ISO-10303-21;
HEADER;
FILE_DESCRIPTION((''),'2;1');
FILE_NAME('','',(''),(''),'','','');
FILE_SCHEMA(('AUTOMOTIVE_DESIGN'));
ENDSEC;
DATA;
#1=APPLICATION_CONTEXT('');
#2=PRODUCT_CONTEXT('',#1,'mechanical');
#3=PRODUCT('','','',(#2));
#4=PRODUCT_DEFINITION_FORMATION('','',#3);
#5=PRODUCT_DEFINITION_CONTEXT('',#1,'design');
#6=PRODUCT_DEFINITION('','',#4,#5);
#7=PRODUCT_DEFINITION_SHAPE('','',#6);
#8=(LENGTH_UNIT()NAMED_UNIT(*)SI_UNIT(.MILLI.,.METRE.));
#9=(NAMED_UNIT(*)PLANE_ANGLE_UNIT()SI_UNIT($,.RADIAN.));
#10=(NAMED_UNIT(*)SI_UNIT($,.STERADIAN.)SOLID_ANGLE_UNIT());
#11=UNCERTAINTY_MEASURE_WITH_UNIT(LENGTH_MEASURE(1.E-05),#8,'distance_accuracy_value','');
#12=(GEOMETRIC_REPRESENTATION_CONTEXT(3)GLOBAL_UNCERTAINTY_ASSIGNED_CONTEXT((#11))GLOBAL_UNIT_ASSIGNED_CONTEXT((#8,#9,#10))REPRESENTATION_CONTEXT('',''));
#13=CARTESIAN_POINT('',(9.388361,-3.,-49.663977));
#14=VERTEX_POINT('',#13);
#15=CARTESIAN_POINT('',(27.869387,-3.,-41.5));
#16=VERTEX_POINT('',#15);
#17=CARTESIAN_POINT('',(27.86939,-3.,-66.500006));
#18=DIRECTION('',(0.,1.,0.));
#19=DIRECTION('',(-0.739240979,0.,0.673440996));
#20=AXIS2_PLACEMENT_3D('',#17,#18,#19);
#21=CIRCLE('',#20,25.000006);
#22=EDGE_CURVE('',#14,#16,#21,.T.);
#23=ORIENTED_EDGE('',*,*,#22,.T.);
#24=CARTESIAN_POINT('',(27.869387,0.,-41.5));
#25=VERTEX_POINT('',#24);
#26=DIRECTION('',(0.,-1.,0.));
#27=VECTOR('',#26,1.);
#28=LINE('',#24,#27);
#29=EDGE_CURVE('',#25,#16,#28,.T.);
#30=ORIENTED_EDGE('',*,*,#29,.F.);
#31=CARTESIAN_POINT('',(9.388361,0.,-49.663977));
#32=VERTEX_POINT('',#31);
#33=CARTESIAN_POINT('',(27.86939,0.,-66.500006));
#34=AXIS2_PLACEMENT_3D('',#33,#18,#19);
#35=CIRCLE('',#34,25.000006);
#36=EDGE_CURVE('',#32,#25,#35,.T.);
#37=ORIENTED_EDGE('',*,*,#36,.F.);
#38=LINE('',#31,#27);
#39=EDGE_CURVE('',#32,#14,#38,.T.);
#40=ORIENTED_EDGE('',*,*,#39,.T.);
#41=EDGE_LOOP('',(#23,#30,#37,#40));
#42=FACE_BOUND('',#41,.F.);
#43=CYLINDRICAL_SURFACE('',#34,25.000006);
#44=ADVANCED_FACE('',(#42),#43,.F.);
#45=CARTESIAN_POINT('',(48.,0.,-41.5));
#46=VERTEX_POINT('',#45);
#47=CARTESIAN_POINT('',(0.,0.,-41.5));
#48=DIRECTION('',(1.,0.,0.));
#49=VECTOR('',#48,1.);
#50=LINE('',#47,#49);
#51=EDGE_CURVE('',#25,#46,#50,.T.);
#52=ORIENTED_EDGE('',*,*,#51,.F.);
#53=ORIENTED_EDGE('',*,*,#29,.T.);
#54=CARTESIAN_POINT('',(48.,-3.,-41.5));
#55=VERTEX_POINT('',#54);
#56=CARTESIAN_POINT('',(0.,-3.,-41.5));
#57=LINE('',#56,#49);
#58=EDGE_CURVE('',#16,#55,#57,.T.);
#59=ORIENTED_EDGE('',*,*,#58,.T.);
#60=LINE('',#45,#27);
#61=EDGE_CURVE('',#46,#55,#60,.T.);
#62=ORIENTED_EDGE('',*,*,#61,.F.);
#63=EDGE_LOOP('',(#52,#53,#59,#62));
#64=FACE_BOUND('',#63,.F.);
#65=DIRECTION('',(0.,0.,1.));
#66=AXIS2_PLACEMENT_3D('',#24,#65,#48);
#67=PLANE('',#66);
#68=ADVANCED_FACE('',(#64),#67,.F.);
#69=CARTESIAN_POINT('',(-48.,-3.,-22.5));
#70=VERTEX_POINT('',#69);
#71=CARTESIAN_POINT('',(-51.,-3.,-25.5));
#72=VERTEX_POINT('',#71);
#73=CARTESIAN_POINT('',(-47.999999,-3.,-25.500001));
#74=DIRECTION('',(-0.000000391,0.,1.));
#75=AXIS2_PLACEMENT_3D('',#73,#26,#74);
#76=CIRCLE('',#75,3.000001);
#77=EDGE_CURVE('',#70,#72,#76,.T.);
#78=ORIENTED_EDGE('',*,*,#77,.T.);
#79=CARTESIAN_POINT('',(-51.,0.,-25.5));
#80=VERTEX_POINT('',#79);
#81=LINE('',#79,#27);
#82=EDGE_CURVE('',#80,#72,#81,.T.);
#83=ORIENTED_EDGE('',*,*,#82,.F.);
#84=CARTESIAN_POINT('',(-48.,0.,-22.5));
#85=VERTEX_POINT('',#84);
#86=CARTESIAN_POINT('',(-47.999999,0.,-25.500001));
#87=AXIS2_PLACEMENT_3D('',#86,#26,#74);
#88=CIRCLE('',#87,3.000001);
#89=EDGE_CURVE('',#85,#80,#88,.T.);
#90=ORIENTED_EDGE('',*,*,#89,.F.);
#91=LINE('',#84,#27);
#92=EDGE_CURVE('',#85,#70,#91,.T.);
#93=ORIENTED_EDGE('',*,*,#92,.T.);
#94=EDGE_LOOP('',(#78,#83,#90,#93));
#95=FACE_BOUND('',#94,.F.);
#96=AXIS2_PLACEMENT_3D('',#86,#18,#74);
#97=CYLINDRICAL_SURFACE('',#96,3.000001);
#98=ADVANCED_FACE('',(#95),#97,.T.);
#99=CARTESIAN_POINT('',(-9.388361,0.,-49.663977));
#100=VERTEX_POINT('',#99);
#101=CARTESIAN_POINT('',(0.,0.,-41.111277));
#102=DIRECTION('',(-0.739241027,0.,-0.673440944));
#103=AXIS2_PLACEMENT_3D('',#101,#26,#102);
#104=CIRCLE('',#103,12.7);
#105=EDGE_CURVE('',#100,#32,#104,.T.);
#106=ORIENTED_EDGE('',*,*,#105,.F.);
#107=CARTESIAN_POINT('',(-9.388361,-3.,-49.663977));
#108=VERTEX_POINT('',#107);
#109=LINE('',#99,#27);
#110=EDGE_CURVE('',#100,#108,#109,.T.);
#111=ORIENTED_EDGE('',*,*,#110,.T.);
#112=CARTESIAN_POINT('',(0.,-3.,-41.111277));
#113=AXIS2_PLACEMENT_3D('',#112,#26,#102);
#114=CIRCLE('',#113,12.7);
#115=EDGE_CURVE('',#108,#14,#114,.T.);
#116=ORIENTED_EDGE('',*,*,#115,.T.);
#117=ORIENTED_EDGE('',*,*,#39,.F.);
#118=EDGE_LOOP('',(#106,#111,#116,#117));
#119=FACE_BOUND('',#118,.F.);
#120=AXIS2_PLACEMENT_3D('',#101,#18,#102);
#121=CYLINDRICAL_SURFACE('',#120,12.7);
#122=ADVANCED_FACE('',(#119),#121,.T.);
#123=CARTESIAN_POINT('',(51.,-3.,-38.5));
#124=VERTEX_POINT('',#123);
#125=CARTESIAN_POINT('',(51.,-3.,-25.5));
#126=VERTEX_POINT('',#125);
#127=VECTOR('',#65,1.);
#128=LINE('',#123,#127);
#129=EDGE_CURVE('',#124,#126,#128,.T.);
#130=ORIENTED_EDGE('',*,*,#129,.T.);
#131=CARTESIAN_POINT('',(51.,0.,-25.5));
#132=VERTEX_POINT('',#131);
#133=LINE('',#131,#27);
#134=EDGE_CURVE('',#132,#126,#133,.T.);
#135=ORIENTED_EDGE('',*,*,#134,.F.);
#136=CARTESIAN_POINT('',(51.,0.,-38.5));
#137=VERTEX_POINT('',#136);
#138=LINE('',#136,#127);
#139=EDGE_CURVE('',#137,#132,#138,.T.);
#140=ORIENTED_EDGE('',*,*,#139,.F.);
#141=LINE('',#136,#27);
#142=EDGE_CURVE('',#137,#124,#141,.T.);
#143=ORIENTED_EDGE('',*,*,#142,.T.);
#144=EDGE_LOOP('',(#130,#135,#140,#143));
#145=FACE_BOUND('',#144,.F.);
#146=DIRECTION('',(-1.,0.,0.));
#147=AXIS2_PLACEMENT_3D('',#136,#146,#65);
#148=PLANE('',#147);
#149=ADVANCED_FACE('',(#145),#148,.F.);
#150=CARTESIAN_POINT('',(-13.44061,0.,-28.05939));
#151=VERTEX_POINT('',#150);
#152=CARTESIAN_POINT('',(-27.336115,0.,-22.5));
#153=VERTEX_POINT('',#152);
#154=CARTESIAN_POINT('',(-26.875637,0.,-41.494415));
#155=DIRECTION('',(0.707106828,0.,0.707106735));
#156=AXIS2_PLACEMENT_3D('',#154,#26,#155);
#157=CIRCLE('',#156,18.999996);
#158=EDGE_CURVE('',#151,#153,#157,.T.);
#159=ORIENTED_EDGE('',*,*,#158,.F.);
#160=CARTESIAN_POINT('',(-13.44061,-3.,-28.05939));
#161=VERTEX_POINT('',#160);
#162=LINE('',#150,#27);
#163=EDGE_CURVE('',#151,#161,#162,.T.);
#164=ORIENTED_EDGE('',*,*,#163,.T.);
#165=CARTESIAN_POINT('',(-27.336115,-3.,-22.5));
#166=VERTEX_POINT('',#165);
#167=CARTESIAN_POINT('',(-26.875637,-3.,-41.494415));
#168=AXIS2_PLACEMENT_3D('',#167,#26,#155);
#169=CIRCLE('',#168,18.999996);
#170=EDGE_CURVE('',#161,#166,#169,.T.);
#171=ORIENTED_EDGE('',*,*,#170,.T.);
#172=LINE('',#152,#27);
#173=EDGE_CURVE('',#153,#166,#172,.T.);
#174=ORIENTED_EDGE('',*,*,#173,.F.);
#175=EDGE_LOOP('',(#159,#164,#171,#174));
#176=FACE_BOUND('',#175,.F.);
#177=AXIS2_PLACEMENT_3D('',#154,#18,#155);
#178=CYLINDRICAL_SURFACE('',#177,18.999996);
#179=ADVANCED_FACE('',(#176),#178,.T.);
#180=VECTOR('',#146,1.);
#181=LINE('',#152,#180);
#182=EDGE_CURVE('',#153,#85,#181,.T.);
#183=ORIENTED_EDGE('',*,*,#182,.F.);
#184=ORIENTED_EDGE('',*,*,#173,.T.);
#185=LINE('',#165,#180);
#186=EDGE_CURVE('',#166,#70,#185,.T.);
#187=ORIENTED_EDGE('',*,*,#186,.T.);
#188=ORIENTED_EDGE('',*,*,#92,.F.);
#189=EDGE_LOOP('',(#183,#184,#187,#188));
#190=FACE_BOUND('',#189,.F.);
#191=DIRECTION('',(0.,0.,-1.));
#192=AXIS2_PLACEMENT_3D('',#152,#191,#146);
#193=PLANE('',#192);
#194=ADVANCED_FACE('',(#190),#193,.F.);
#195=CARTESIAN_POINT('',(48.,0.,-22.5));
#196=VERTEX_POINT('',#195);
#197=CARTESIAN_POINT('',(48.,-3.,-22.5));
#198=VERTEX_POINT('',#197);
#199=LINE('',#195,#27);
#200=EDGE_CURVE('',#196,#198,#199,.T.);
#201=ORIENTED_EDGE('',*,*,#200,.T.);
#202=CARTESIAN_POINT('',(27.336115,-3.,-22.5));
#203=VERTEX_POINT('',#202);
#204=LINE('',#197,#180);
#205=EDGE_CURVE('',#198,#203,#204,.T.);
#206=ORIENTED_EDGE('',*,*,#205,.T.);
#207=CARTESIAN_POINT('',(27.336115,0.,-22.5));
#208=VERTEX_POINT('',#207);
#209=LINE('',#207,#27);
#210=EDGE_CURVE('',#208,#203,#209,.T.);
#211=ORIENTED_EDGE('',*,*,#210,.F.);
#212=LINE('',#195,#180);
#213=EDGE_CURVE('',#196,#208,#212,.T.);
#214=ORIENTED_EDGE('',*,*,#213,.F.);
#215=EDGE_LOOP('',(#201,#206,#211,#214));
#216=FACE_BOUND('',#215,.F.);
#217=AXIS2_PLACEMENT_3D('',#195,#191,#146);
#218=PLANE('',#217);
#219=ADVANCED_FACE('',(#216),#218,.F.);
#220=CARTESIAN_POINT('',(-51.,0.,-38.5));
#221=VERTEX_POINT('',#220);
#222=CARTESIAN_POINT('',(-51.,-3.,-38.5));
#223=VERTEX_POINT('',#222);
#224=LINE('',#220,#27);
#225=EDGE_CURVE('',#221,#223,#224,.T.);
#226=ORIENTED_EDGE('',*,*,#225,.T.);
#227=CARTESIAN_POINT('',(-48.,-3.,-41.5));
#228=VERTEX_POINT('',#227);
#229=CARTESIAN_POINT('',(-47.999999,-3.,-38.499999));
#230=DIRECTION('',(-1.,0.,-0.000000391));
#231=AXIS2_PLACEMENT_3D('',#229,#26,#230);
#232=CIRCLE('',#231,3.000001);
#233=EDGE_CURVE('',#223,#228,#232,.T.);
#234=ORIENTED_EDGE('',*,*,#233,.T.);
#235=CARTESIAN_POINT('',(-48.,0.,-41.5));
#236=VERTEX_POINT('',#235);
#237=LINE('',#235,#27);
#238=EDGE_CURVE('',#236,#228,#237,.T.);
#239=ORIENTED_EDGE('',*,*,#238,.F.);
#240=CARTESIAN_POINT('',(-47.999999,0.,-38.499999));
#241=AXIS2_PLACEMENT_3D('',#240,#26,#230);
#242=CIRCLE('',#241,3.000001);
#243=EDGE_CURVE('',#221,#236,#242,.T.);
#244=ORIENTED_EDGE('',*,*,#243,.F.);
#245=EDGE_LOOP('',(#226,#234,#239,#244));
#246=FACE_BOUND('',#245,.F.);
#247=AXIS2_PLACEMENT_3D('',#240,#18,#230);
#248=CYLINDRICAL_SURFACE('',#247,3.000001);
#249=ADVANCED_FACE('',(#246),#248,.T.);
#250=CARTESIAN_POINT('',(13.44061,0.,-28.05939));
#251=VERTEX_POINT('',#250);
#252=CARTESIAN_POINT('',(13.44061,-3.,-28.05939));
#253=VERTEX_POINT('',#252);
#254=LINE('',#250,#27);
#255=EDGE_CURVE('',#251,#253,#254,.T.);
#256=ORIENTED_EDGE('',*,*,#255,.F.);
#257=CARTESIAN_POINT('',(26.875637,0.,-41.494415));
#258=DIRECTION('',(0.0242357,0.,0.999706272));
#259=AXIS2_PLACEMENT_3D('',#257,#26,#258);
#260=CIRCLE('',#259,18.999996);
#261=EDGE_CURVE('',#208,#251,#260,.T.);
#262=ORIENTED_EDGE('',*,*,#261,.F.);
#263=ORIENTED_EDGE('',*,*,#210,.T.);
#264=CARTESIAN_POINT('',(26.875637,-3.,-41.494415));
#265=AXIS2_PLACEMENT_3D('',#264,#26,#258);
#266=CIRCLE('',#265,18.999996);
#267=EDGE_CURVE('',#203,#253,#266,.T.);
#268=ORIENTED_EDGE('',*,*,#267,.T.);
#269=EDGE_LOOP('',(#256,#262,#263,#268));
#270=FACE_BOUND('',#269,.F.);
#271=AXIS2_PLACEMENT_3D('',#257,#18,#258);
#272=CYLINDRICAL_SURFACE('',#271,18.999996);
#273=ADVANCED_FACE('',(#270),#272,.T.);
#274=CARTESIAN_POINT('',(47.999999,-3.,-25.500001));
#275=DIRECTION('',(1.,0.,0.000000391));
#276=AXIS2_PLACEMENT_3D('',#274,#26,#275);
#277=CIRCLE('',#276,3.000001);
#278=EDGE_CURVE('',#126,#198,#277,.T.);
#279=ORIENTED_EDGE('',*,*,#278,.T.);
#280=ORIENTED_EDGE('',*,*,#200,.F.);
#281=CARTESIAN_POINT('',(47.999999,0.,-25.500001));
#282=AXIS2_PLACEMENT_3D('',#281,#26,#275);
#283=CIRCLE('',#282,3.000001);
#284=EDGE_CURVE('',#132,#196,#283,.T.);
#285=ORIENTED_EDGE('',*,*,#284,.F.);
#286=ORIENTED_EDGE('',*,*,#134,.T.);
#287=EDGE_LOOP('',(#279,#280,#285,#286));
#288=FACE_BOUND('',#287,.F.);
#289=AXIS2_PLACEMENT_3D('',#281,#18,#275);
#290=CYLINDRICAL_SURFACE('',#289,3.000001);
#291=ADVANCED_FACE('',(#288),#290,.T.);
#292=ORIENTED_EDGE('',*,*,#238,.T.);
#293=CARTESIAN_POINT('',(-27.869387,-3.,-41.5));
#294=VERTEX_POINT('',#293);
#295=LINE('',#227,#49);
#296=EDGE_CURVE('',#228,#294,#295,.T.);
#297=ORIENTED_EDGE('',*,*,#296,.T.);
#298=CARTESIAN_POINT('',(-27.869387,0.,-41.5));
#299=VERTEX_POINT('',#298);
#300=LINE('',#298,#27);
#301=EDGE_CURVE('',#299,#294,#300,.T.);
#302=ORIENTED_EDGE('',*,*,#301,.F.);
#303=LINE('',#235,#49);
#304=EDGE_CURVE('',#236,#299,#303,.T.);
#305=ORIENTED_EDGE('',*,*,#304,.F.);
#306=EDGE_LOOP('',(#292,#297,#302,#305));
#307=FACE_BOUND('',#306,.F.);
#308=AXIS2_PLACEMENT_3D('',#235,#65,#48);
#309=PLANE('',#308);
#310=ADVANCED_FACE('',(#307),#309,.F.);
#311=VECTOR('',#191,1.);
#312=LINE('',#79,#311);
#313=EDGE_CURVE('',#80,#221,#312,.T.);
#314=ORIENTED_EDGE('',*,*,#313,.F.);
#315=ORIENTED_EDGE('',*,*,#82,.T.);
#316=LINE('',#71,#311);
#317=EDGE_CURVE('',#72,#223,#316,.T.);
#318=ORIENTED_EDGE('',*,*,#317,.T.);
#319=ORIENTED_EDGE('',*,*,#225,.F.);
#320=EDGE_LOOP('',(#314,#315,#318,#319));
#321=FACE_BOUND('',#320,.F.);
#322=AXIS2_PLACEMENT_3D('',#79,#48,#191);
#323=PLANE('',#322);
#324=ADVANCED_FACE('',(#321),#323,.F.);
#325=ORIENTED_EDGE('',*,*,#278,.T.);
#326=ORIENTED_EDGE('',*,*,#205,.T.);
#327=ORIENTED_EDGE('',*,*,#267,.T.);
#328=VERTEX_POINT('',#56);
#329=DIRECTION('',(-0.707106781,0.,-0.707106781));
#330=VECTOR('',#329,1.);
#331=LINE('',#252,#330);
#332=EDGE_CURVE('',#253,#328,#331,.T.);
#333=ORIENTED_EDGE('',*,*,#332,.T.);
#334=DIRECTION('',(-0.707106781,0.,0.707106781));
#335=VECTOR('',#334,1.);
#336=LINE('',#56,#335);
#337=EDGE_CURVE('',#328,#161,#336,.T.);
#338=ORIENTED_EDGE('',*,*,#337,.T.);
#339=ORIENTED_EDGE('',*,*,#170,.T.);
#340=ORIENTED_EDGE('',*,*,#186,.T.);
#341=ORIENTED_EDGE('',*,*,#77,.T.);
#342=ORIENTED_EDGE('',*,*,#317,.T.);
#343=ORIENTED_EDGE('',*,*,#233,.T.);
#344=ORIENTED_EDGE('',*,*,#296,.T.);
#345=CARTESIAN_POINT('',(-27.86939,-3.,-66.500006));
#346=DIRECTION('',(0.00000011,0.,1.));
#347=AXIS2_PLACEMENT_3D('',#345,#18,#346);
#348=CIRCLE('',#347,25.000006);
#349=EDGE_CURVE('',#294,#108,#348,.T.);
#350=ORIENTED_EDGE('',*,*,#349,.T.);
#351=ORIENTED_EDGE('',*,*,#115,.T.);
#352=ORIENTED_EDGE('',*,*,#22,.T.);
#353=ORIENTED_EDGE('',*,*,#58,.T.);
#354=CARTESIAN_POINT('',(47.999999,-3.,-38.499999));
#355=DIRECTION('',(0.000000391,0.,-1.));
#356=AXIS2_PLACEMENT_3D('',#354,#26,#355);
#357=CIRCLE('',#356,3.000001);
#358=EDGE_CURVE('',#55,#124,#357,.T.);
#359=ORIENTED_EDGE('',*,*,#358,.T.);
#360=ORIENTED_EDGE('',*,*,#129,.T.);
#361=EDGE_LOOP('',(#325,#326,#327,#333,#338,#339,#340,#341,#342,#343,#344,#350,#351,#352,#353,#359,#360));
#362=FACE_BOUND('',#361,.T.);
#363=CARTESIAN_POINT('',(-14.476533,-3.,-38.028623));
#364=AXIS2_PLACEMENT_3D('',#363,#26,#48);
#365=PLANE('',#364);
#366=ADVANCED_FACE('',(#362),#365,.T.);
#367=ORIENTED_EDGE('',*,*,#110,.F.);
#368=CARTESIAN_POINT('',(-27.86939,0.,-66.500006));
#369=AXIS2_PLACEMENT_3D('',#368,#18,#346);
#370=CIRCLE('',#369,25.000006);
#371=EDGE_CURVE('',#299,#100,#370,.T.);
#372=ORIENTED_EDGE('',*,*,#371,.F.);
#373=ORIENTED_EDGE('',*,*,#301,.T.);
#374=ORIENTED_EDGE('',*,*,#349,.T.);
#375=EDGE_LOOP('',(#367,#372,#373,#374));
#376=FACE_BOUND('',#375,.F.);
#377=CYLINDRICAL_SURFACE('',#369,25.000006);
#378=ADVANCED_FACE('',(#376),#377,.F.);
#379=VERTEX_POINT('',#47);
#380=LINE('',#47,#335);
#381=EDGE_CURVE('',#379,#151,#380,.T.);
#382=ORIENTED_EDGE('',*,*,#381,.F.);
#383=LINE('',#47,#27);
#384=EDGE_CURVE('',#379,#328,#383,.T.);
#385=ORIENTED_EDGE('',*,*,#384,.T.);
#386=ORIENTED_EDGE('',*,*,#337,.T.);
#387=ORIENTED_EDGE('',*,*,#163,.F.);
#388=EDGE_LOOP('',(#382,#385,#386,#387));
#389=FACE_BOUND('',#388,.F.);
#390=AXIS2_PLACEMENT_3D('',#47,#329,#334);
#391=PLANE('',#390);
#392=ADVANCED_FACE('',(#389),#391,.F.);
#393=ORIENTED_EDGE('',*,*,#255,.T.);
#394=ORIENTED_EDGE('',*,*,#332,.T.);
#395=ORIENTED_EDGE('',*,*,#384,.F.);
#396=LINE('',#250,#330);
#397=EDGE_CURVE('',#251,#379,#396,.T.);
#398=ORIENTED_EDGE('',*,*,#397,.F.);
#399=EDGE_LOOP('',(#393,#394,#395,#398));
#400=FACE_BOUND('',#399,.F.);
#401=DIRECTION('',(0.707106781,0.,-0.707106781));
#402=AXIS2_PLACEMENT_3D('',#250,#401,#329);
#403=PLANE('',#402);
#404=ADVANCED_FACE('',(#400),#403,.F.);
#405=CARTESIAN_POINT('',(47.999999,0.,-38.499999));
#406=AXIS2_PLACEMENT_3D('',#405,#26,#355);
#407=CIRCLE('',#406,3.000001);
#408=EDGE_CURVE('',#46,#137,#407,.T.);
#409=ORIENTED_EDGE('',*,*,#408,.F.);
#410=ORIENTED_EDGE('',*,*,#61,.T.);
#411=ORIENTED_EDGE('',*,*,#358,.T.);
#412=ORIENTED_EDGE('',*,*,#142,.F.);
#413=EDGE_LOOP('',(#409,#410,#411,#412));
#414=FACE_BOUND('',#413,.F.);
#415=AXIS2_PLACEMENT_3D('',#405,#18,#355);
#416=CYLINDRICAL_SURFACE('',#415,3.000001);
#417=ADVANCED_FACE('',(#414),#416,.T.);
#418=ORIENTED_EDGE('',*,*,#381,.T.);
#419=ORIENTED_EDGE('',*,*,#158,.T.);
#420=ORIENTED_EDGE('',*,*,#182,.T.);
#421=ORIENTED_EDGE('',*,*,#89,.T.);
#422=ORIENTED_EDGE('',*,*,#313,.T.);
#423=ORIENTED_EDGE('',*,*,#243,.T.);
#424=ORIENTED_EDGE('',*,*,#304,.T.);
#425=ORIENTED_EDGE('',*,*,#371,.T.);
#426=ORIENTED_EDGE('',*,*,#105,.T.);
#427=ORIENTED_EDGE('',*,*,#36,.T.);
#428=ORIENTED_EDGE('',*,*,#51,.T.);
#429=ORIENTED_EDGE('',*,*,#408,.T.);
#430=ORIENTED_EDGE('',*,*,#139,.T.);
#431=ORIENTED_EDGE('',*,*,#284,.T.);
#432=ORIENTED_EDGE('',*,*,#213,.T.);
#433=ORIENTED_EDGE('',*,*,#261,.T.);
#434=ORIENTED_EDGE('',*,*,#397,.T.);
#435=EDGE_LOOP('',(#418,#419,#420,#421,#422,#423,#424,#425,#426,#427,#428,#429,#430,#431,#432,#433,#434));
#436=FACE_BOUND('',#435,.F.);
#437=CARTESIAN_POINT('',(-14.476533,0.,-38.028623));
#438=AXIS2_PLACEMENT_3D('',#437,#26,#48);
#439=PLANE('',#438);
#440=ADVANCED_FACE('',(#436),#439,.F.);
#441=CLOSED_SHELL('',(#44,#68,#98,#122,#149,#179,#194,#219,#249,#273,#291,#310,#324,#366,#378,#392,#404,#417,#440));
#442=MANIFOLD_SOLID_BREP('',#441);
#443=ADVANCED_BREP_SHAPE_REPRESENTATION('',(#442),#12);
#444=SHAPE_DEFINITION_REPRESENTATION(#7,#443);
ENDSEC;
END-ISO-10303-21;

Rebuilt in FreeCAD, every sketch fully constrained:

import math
import FreeCAD as App
import Part
import Sketcher

V = App.Vector
Q = App.Units.Quantity

doc = App.newDocument("Part")
body = doc.addObject("PartDesign::Body", "Body")

# Sketch on XZ plane
sketch1 = doc.addObject("Sketcher::SketchObject", "Sketch")
body.addObject(sketch1)
sketch1.AttachmentSupport = (doc.XZ_Plane, [""])
sketch1.MapMode = "FlatFace"
sketch1.addGeometry(Part.ArcOfCircle(Part.Circle(V(-48, -25.5, 0), V(0, 0, 1), 3), math.radians(90), math.radians(180)), False)
sketch1.addGeometry(Part.LineSegment(V(-51, -25.5, 0), V(-51, -38.5, 0)), False)
sketch1.addGeometry(Part.ArcOfCircle(Part.Circle(V(-48, -38.5, 0), V(0, 0, 1), 3), math.radians(-180), math.radians(-90)), False)
sketch1.addGeometry(Part.LineSegment(V(-48, -41.5, 0), V(-27.9, -41.5, 0)), False)
sketch1.addGeometry(Part.ArcOfCircle(Part.Circle(V(-27.9, -66.5, 0), V(0, 0, 1), 25), math.radians(42), math.radians(90)), False)
sketch1.addGeometry(Part.ArcOfCircle(Part.Circle(V(0, -41.1, 0), V(0, 0, 1), 12.7), math.radians(-138), math.radians(-42)), False)
sketch1.addGeometry(Part.ArcOfCircle(Part.Circle(V(27.9, -66.5, 0), V(0, 0, 1), 25), math.radians(90), math.radians(138)), False)
sketch1.addGeometry(Part.LineSegment(V(27.9, -41.5, 0), V(48, -41.5, 0)), False)
sketch1.addGeometry(Part.ArcOfCircle(Part.Circle(V(48, -38.5, 0), V(0, 0, 1), 3), math.radians(-90), math.radians(0)), False)
sketch1.addGeometry(Part.LineSegment(V(51, -38.5, 0), V(51, -25.5, 0)), False)
sketch1.addGeometry(Part.ArcOfCircle(Part.Circle(V(48, -25.5, 0), V(0, 0, 1), 3), math.radians(0), math.radians(90)), False)
sketch1.addGeometry(Part.LineSegment(V(48, -22.5, 0), V(27.3, -22.5, 0)), False)
sketch1.addGeometry(Part.ArcOfCircle(Part.Circle(V(26.9, -41.5, 0), V(0, 0, 1), 19), math.radians(89), math.radians(135)), False)
sketch1.addGeometry(Part.LineSegment(V(13.4, -28.1, 0), V(0, -41.5, 0)), False)
sketch1.addGeometry(Part.LineSegment(V(0, -41.5, 0), V(-13.4, -28.1, 0)), False)
sketch1.addGeometry(Part.ArcOfCircle(Part.Circle(V(-26.9, -41.5, 0), V(0, 0, 1), 19), math.radians(45), math.radians(91)), False)
sketch1.addGeometry(Part.LineSegment(V(-27.3, -22.5, 0), V(-48, -22.5, 0)), False)
sketch1.addConstraint(Sketcher.Constraint("Tangent", 0, 2, 1, 1))
sketch1.addConstraint(Sketcher.Constraint("Tangent", 1, 2, 2, 1))
sketch1.addConstraint(Sketcher.Constraint("Tangent", 2, 2, 3, 1))
sketch1.addConstraint(Sketcher.Constraint("Tangent", 3, 2, 4, 2))
sketch1.addConstraint(Sketcher.Constraint("Tangent", 4, 1, 5, 1))
sketch1.addConstraint(Sketcher.Constraint("Tangent", 5, 2, 6, 2))
sketch1.addConstraint(Sketcher.Constraint("Tangent", 6, 1, 7, 1))
sketch1.addConstraint(Sketcher.Constraint("Tangent", 7, 2, 8, 1))
sketch1.addConstraint(Sketcher.Constraint("Tangent", 8, 2, 9, 1))
sketch1.addConstraint(Sketcher.Constraint("Tangent", 9, 2, 10, 1))
sketch1.addConstraint(Sketcher.Constraint("Tangent", 10, 2, 11, 1))
sketch1.addConstraint(Sketcher.Constraint("Coincident", 11, 2, 12, 1))
sketch1.addConstraint(Sketcher.Constraint("Tangent", 12, 2, 13, 1))
sketch1.addConstraint(Sketcher.Constraint("Coincident", 13, 2, 14, 1))
sketch1.addConstraint(Sketcher.Constraint("Tangent", 14, 2, 15, 1))
sketch1.addConstraint(Sketcher.Constraint("Coincident", 15, 2, 16, 1))
sketch1.addConstraint(Sketcher.Constraint("Tangent", 16, 2, 0, 1))
sketch1.addConstraint(Sketcher.Constraint("Vertical", 1))
sketch1.addConstraint(Sketcher.Constraint("Horizontal", 3))
sketch1.addConstraint(Sketcher.Constraint("Horizontal", 7))
sketch1.addConstraint(Sketcher.Constraint("Vertical", 9))
sketch1.addConstraint(Sketcher.Constraint("Horizontal", 11))
sketch1.addConstraint(Sketcher.Constraint("Horizontal", 16))
sketch1.addConstraint(Sketcher.Constraint("Equal", 0, 2))
sketch1.addConstraint(Sketcher.Constraint("Equal", 4, 6))
sketch1.addConstraint(Sketcher.Constraint("Equal", 2, 8))
sketch1.addConstraint(Sketcher.Constraint("Equal", 8, 10))
sketch1.addConstraint(Sketcher.Constraint("Equal", 12, 15))
sketch1.addConstraint(Sketcher.Constraint("Symmetric", 4, 3, 6, 3, -2))
sketch1.addConstraint(Sketcher.Constraint("Symmetric", 0, 3, 10, 3, -2))
sketch1.addConstraint(Sketcher.Constraint("Symmetric", 12, 3, 15, 3, -2))
sketch1.addConstraint(Sketcher.Constraint("PointOnObject", 13, 2, -2))
sketch1.addConstraint(Sketcher.Constraint("Perpendicular", 13, 14))
sketch1.addConstraint(Sketcher.Constraint("Horizontal", 7, 2, 13, 2))
sketch1.addConstraint(Sketcher.Constraint("Radius", 0, Q("3.000001 mm")))
sketch1.addConstraint(Sketcher.Constraint("Radius", 5, Q("12.7 mm")))
sketch1.addConstraint(Sketcher.Constraint("DistanceY", 1, 2, 1, 1, Q("13 mm")))
sketch1.addConstraint(Sketcher.Constraint("DistanceX", 0, 3, -1, 1, Q("47.999999 mm")))
sketch1.addConstraint(Sketcher.Constraint("DistanceY", 0, 3, -1, 1, Q("25.500001 mm")))
sketch1.addConstraint(Sketcher.Constraint("Radius", 4, Q("25.000006 mm")))
sketch1.addConstraint(Sketcher.Constraint("Radius", 12, Q("18.999996 mm")))
sketch1.addConstraint(Sketcher.Constraint("DistanceY", 4, 1, 5, 3, Q("8.5527 mm")))
sketch1.addConstraint(Sketcher.Constraint("DistanceX", 11, 2, 11, 1, Q("20.663885 mm")))
pad1 = doc.addObject("PartDesign::Pad", "Pad")
body.addObject(pad1)
pad1.Profile = sketch1
pad1.Length = 3

doc.recompute()
